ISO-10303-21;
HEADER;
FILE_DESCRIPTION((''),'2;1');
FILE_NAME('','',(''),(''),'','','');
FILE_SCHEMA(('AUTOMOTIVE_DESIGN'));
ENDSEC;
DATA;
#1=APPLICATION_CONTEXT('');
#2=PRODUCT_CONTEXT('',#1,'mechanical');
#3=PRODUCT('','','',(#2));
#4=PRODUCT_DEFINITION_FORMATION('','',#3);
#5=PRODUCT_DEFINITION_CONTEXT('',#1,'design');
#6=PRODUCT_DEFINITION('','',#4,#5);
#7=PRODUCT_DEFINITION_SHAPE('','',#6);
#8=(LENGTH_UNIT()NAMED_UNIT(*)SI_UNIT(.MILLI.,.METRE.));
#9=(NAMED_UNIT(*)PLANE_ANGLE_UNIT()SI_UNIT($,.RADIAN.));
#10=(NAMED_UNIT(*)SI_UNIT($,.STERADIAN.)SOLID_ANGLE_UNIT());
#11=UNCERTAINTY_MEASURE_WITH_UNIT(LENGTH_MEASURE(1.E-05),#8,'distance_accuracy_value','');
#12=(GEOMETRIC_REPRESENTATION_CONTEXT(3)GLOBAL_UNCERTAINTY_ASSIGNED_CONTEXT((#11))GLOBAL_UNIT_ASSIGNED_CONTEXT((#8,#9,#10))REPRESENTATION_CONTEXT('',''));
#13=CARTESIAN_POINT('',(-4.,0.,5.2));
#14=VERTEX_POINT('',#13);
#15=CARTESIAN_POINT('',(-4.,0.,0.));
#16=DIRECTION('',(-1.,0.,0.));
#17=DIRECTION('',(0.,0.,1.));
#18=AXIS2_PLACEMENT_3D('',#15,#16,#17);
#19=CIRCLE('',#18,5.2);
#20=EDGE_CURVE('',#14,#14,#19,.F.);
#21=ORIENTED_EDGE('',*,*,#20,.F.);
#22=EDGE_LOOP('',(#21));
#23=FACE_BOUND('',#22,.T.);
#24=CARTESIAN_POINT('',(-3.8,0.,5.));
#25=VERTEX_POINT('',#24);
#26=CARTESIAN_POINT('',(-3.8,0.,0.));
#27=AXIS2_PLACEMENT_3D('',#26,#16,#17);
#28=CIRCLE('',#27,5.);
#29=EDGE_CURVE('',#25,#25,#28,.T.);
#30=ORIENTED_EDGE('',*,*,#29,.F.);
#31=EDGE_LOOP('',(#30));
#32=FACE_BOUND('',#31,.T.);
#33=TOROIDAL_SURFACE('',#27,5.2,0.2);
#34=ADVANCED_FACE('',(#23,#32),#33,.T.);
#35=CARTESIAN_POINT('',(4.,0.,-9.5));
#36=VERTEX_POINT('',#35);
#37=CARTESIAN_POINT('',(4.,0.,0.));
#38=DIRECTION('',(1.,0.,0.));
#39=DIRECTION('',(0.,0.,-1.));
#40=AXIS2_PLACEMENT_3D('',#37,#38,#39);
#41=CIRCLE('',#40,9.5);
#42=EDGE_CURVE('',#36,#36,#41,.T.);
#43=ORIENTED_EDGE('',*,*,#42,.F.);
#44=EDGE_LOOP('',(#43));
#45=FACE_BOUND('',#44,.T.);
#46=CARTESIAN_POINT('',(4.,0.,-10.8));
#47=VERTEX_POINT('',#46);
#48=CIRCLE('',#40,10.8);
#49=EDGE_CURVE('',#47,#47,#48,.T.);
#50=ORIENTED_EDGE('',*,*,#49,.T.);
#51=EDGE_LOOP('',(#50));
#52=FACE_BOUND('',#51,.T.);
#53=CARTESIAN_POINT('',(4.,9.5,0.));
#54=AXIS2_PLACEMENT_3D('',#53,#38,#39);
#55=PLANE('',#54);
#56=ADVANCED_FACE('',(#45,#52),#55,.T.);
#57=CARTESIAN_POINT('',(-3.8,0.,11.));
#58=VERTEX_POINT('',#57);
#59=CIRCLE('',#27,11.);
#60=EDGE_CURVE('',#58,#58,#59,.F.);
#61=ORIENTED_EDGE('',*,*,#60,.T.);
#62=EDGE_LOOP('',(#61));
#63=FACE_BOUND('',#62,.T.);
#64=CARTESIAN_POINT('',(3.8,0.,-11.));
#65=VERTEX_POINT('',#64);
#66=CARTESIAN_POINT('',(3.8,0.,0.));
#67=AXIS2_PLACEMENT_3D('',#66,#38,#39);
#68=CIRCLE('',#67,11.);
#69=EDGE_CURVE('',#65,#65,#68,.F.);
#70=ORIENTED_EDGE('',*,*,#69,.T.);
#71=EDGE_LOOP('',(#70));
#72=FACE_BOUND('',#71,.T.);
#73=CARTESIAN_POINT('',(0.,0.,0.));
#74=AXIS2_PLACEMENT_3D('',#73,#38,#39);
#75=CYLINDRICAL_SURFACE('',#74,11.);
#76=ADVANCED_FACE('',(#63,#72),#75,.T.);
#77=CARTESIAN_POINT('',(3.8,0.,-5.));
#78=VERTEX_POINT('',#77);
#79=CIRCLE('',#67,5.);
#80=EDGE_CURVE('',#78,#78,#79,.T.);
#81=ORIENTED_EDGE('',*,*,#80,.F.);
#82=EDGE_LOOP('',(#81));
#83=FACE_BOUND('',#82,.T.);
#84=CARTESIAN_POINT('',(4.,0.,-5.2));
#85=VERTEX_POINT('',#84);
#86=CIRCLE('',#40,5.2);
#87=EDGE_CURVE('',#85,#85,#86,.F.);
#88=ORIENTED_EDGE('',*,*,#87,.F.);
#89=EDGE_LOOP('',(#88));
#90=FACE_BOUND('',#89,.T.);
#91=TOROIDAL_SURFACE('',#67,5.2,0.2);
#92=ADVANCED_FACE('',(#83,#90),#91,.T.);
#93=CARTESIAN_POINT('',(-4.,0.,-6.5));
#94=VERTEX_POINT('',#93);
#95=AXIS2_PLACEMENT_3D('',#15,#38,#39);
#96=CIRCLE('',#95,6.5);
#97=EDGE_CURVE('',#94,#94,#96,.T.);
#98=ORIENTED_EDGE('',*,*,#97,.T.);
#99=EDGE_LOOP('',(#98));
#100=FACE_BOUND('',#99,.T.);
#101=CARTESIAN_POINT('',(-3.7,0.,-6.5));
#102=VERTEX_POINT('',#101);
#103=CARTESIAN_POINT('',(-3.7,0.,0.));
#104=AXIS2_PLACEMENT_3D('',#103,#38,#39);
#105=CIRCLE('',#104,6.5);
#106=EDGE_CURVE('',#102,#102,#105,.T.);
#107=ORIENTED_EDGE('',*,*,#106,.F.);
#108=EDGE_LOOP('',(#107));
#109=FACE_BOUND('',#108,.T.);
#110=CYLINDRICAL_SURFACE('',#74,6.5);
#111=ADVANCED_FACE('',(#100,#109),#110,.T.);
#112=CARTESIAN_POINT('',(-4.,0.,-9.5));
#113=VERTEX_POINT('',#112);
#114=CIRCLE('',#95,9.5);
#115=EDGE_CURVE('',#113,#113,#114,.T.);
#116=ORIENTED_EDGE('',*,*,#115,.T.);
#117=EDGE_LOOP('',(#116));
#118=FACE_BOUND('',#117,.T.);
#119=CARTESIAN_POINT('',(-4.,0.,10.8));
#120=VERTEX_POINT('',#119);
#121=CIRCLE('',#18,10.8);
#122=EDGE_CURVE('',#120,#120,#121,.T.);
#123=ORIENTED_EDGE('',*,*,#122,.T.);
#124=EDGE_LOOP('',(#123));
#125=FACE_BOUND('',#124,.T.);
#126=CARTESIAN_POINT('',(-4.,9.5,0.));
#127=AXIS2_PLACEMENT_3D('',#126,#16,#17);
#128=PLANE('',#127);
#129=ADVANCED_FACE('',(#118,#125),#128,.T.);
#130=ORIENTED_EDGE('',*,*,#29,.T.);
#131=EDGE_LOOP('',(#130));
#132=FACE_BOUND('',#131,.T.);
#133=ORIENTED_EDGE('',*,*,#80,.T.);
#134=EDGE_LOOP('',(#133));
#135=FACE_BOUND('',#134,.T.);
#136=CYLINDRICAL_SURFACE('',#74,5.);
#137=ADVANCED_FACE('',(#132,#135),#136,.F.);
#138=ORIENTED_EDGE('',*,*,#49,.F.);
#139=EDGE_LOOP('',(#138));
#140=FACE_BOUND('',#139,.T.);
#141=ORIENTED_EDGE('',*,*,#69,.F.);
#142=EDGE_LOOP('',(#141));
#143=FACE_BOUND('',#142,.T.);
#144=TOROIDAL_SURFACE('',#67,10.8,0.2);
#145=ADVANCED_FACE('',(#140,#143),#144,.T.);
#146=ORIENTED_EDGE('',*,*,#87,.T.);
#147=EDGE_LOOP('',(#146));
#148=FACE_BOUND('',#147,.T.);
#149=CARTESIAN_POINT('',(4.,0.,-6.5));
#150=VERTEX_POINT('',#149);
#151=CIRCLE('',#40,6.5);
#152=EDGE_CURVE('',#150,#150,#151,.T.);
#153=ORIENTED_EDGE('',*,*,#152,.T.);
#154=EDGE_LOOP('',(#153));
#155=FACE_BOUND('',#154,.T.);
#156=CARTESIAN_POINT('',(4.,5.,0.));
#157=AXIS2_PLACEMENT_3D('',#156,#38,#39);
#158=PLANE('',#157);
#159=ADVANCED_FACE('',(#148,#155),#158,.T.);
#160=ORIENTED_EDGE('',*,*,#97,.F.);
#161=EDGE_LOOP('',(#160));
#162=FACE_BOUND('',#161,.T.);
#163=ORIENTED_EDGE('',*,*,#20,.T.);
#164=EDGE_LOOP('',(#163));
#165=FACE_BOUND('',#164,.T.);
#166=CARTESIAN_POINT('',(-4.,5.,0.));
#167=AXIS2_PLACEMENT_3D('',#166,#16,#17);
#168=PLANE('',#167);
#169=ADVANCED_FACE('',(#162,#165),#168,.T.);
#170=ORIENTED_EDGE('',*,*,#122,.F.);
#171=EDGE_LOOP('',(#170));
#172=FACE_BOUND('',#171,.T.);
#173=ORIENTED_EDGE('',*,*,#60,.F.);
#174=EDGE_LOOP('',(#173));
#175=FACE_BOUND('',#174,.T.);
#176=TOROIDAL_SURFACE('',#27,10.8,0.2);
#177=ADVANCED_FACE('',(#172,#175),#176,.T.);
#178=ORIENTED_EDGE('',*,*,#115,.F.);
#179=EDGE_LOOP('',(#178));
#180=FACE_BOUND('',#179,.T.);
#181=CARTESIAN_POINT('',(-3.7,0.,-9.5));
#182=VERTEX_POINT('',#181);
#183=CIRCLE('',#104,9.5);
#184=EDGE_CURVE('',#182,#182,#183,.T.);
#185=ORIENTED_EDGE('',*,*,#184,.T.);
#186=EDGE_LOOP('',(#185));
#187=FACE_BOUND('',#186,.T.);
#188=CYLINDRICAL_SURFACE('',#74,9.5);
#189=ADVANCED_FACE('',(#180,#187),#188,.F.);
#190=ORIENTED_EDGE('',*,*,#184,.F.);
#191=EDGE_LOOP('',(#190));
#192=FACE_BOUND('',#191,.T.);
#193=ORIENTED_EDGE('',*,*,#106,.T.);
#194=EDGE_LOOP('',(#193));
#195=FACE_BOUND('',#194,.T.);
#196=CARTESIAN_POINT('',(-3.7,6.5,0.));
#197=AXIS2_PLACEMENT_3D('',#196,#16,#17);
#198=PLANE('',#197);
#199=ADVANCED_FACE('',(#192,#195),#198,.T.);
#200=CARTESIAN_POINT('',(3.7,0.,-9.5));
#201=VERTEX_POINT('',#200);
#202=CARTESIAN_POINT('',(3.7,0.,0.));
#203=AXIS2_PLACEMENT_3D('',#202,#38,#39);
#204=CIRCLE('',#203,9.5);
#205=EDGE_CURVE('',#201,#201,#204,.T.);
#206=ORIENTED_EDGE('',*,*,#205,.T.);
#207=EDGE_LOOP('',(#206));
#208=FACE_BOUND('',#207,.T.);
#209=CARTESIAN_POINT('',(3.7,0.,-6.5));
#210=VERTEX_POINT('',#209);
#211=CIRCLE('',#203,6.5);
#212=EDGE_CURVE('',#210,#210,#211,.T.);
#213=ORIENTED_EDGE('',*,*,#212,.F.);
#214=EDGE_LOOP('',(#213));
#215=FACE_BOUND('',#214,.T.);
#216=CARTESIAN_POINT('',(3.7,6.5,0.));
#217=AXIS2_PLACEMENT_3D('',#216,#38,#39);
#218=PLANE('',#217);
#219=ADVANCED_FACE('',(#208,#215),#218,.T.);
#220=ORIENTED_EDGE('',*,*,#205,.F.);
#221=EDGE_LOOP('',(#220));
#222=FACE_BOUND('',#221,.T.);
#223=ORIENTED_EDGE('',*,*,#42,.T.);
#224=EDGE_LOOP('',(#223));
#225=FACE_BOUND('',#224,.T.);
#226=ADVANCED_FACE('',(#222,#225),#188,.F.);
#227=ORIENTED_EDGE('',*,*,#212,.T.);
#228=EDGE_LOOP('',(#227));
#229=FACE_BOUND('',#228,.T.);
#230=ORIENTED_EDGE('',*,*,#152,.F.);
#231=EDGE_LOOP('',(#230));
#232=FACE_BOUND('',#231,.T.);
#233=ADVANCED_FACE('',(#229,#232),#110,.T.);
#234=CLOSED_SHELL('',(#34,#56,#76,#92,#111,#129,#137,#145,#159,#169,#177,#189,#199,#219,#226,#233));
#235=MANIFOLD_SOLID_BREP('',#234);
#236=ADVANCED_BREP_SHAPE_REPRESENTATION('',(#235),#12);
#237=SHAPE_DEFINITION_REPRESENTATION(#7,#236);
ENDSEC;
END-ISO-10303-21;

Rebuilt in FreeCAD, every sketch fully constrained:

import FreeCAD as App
import Part
import Sketcher

V = App.Vector


def edges_at(feature, points):
    """Names of the edges that pass closest to the given points."""
    edges = feature.Shape.Edges
    near = lambda p: min(range(len(edges)), key=lambda i: edges[i].distToShape(Part.Vertex(*p))[0])
    return sorted({f"Edge{near(p) + 1}" for p in points})


def add_polygon(sketch, points):
    """Adds a closed chain of lines whose ends are joined by coincident constraints."""
    first, n = sketch.GeometryCount, len(points)
    for a, b in zip(points, points[1:] + points[:1]):
        sketch.addGeometry(Part.LineSegment(App.Vector(*a, 0), App.Vector(*b, 0)), False)
    for i in range(n):
        sketch.addConstraint(Sketcher.Constraint("Coincident", first + i, 2, first + (i + 1) % n, 1))

doc = App.newDocument("Part")
body = doc.addObject("PartDesign::Body", "Body")

sketch1 = body.newObject("Sketcher::SketchObject", "Sketch")
sketch1.AttachmentSupport = (doc.getObject("XY_Plane"), [""])
sketch1.MapMode = "FlatFace"
add_polygon(sketch1, [(-4, 5), (4, 5), (4, 6.5), (3.7, 6.5), (3.7, 9.5), (4, 9.5), (4, 11), (-4, 11), (-4, 9.5), (-3.7, 9.5), (-3.7, 6.5), (-4, 6.5)])
sketch1.addConstraint([
    Sketcher.Constraint("Horizontal", 0),
    Sketcher.Constraint("Vertical", 1),
    Sketcher.Constraint("Horizontal", 2),
    Sketcher.Constraint("Vertical", 3),
    Sketcher.Constraint("Horizontal", 4),
    Sketcher.Constraint("Vertical", 5),
    Sketcher.Constraint("Horizontal", 6),
    Sketcher.Constraint("Vertical", 7),
    Sketcher.Constraint("Horizontal", 8),
    Sketcher.Constraint("Vertical", 9),
    Sketcher.Constraint("Horizontal", 10),
    Sketcher.Constraint("Vertical", 11),
    Sketcher.Constraint("Symmetric", 4, 2, 7, 2, -2),
    Sketcher.Constraint("Symmetric", 2, 2, 9, 2, -2),
    Sketcher.Constraint("Vertical", 1, 2, 4, 2),
    Sketcher.Constraint("Vertical", 7, 2, 10, 2),
    Sketcher.Constraint("Equal", 1, 5),
    Sketcher.Constraint("DistanceX", 0, 1, 0, 2, 8.0),
    Sketcher.Constraint("DistanceY", 3, 1, 3, 2, 3.0),
    Sketcher.Constraint("DistanceX", 2, 2, 2, 1, 0.3),
    Sketcher.Constraint("DistanceY", 1, 1, 1, 2, 1.5),
    Sketcher.Constraint("DistanceY", -1, 1, 0, 2, 5.0),
])
revolution = body.newObject("PartDesign::Revolution", "Revolution")
revolution.Profile = sketch1
revolution.ReferenceAxis = (sketch1, ["H_Axis"])
revolution.Angle = 360
doc.recompute()

fillet = body.newObject("PartDesign::Fillet", "Fillet")
fillet.Base = (revolution, edges_at(revolution, [
    (4, 0, 11),
    (-4, 0, 11),
    (-4, 0, 5),
    (4, 0, 5),
]))
fillet.Radius = 0.2

doc.recompute()
